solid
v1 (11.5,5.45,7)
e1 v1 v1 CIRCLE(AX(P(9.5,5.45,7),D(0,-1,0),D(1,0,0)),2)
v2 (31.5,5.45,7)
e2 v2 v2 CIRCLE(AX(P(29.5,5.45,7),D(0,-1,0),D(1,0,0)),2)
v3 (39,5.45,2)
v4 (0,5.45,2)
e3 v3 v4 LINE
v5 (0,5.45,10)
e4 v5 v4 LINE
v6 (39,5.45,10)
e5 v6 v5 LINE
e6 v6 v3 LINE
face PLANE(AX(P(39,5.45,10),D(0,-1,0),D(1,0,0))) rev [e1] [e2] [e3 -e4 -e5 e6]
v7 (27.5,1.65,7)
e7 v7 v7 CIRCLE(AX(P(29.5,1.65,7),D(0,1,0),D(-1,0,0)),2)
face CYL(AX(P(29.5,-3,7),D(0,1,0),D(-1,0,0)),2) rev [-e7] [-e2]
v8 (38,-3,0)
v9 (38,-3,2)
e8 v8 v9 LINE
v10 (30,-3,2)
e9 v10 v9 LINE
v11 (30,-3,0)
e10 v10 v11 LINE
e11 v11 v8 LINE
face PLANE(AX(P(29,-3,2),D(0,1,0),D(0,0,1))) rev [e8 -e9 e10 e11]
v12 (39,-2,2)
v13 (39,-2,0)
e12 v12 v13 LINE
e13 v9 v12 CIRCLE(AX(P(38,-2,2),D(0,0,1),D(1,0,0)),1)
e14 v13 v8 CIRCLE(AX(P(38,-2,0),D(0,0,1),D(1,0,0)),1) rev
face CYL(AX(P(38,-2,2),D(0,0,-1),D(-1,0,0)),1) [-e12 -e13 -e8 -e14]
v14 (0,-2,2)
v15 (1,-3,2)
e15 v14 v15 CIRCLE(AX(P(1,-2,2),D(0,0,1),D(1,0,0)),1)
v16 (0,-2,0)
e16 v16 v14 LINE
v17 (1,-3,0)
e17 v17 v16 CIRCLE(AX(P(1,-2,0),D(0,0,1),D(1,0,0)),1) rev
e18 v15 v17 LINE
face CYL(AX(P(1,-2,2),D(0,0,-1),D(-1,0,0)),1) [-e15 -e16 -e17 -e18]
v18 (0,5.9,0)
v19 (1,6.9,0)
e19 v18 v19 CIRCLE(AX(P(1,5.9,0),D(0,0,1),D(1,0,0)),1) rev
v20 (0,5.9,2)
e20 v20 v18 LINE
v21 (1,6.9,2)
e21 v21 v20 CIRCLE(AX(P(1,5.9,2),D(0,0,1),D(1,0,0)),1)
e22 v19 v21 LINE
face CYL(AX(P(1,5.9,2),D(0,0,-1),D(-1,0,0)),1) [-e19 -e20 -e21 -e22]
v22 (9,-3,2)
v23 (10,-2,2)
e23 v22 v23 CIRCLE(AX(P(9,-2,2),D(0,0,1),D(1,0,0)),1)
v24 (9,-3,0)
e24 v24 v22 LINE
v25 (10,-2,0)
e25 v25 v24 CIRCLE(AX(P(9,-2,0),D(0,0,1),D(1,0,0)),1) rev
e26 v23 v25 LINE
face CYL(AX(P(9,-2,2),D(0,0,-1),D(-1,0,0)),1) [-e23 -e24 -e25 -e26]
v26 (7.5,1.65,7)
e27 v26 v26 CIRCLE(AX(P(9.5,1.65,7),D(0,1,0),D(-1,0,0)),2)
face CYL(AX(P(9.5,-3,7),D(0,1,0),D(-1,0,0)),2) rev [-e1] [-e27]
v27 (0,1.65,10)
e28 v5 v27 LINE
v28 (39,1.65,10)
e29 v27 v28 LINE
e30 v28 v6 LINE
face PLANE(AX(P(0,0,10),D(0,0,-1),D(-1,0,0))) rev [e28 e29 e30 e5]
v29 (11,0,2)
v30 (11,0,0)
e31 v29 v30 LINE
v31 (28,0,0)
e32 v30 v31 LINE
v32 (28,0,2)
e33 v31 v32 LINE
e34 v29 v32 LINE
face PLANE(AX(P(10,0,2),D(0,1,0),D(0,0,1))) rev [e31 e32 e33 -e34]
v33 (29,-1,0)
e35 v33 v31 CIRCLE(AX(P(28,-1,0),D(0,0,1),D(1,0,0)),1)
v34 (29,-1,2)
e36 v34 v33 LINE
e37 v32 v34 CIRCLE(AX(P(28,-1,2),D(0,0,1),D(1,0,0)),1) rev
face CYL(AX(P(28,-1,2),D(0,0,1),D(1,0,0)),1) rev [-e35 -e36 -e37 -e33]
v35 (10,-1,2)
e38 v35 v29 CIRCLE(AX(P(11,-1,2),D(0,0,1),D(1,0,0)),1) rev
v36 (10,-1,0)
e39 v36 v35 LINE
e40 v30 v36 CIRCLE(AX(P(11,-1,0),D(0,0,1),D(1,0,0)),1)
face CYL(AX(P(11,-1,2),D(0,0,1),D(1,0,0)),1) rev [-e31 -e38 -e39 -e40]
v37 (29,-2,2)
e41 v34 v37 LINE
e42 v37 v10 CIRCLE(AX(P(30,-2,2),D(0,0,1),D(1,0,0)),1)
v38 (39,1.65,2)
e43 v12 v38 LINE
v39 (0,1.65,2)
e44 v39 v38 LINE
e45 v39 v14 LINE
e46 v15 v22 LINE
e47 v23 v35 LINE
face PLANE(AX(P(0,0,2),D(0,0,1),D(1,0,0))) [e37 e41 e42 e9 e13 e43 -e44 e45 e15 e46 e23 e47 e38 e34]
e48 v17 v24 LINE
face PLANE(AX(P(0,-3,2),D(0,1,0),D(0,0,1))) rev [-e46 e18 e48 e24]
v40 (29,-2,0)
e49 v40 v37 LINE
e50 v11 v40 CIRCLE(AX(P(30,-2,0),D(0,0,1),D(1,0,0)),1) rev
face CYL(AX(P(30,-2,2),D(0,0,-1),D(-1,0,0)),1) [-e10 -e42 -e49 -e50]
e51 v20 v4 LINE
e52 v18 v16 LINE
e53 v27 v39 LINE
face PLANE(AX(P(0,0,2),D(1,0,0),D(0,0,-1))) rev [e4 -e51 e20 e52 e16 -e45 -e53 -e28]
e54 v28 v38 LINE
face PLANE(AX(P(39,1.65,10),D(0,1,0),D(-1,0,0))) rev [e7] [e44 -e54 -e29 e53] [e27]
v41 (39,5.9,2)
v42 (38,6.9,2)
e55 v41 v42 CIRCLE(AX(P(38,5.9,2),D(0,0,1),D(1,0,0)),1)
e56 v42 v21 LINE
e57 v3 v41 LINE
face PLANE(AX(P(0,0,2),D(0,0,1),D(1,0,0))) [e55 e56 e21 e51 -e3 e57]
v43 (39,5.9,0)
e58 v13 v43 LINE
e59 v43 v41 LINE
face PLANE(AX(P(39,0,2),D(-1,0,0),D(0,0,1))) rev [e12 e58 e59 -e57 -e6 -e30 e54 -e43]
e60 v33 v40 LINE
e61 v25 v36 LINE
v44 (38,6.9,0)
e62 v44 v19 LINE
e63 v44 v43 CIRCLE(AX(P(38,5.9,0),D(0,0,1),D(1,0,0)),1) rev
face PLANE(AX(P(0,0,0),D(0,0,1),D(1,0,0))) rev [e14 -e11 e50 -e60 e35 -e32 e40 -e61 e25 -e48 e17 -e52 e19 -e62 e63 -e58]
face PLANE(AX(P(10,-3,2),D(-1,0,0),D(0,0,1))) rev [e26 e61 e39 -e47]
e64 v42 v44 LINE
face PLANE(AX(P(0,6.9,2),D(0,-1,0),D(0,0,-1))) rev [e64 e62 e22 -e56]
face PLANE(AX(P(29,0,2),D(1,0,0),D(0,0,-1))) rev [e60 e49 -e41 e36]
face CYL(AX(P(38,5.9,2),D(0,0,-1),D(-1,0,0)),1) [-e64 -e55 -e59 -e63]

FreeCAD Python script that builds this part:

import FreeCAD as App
import Part
import Sketcher

V = App.Vector
Q = App.Units.Quantity


def edges_at(feature, points):
    """Names of the edges that pass closest to the given points."""
    edges = feature.Shape.Edges
    near = lambda p: min(range(len(edges)), key=lambda i: edges[i].distToShape(Part.Vertex(*p))[0])
    return sorted({f"Edge{near(p) + 1}" for p in points})


def add_polygon(sketch, points):
    """Adds a closed chain of lines whose ends are joined by coincident constraints."""
    first, n = sketch.GeometryCount, len(points)
    for a, b in zip(points, points[1:] + points[:1]):
        sketch.addGeometry(Part.LineSegment(App.Vector(*a, 0), App.Vector(*b, 0)), False)
    for i in range(n):
        sketch.addConstraint(Sketcher.Constraint("Coincident", first + i, 2, first + (i + 1) % n, 1))

doc = App.newDocument("Part")
body = doc.addObject("PartDesign::Body", "Body")

# Sketch on XY plane
sketch1 = doc.addObject("Sketcher::SketchObject", "Sketch")
body.addObject(sketch1)
sketch1.AttachmentSupport = (doc.XY_Plane, [""])
sketch1.MapMode = "FlatFace"
add_polygon(sketch1, [(0, 6.9), (0, -3), (10, -3), (10, 0), (29, 0), (29, -3), (39, -3), (39, 6.9)])  # lines 0-7
sketch1.addConstraint([
    Sketcher.Constraint("Vertical", 0),
    Sketcher.Constraint("Horizontal", 1),
    Sketcher.Constraint("Vertical", 2),
    Sketcher.Constraint("Horizontal", 3),
    Sketcher.Constraint("Vertical", 4),
    Sketcher.Constraint("Horizontal", 5),
    Sketcher.Constraint("Vertical", 6),
    Sketcher.Constraint("Horizontal", 7),
    Sketcher.Constraint("PointOnObject", 0, 2, -2),
    Sketcher.Constraint("PointOnObject", 2, 2, -1),
    Sketcher.Constraint("Horizontal", 1, 2, 4, 2),
    Sketcher.Constraint("Equal", 1, 5),
    Sketcher.Constraint("DistanceX", 1, 1, 1, 2, Q("10 mm")),
    Sketcher.Constraint("DistanceX", 3, 1, 3, 2, Q("19 mm")),
    Sketcher.Constraint("DistanceY", 2, 1, 2, 2, Q("3 mm")),
    Sketcher.Constraint("DistanceY", 0, 2, 0, 1, Q("9.9 mm")),
])
pad1 = doc.addObject("PartDesign::Pad", "Pad")
body.addObject(pad1)
pad1.Profile = sketch1
pad1.Length = 2

# Sketch on XY plane
sketch2 = doc.addObject("Sketcher::SketchObject", "Sketch001")
body.addObject(sketch2)
sketch2.AttachmentSupport = (doc.XY_Plane, [""])
sketch2.MapMode = "FlatFace"
sketch2.AttachmentOffset = App.Placement(V(0, 0, 2), App.Rotation())
add_polygon(sketch2, [(0, 5.5), (0, 1.6), (39, 1.6), (39, 5.5)])  # lines 0-3
sketch2.addConstraint([
    Sketcher.Constraint("Vertical", 0),
    Sketcher.Constraint("Horizontal", 1),
    Sketcher.Constraint("Vertical", 2),
    Sketcher.Constraint("Horizontal", 3),
    Sketcher.Constraint("PointOnObject", 0, 2, -2),
    Sketcher.Constraint("DistanceX", 1, 1, 1, 2, Q("39 mm")),
    Sketcher.Constraint("DistanceY", 0, 2, 0, 1, Q("3.8 mm")),
    Sketcher.Constraint("DistanceY", -1, 1, 0, 2, Q("1.65 mm")),
])
pad2 = doc.addObject("PartDesign::Pad", "Pad001")
body.addObject(pad2)
pad2.Profile = sketch2
pad2.Length = 8

# Sketch on XZ plane
sketch3 = doc.addObject("Sketcher::SketchObject", "Sketch002")
body.addObject(sketch3)
sketch3.AttachmentSupport = (doc.XZ_Plane, [""])
sketch3.MapMode = "FlatFace"
sketch3.AttachmentOffset = App.Placement(V(0, 0, -1.65), App.Rotation())
sketch3.addGeometry([
    Part.Circle(V(9.5, 7, 0), V(0, 0, 1), 2),
    Part.Circle(V(29.5, 7, 0), V(0, 0, 1), 2),
], False)
sketch3.addConstraint([
    Sketcher.Constraint("Equal", 0, 1),
    Sketcher.Constraint("Horizontal", 0, 3, 1, 3),
    Sketcher.Constraint("Diameter", 0, Q("4 mm")),
    Sketcher.Constraint("DistanceY", -1, 1, 0, 3, Q("7 mm")),
    Sketcher.Constraint("DistanceX", 0, 3, 1, 3, Q("20 mm")),
    Sketcher.Constraint("DistanceX", -1, 1, 0, 3, Q("9.5 mm")),
])
pocket1 = doc.addObject("PartDesign::Pocket", "Pocket")
body.addObject(pocket1)
pocket1.Profile = sketch3
pocket1.Type = "ThroughAll"
pocket1.Midplane = True
doc.recompute()

fillet = doc.addObject("PartDesign::Fillet", "Fillet")
body.addObject(fillet)
fillet.Base = (pocket1, edges_at(pocket1, [
    (0, 6.9, 1),
    (39, 6.9, 1),
    (39, -3, 1),
    (29, -3, 1),
    (29, 0, 1),
    (10, 0, 1),
    (10, -3, 1),
    (0, -3, 1),
]))
fillet.Radius = 1

doc.recompute()
